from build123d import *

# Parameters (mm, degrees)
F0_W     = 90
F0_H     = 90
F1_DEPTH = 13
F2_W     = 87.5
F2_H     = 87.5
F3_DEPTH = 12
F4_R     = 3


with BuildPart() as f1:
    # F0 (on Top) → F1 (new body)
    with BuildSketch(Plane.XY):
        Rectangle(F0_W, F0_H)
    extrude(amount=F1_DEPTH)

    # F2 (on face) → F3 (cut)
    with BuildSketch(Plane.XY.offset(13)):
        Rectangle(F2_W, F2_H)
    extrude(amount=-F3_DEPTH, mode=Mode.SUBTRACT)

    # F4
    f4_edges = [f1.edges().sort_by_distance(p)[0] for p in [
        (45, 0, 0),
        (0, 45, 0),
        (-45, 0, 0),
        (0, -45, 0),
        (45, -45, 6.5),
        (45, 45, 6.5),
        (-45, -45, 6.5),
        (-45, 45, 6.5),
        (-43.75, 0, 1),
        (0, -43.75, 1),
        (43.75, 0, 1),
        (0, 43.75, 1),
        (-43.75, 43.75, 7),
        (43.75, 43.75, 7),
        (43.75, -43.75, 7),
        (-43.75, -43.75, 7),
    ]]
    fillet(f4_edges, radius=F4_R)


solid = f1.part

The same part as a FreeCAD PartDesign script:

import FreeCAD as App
import Part
import Sketcher

V = App.Vector
Q = App.Units.Quantity


def edges_at(feature, points):
    """Names of the edges that pass closest to the given points."""
    edges = feature.Shape.Edges
    near = lambda p: min(range(len(edges)), key=lambda i: edges[i].distToShape(Part.Vertex(*p))[0])
    return sorted({f"Edge{near(p) + 1}" for p in points})

doc = App.newDocument("Part")
body = doc.addObject("PartDesign::Body", "Body")

# Sketch on XY plane
sketch1 = body.newObject("Sketcher::SketchObject", "Sketch")
sketch1.AttachmentSupport = (doc.getObject("XY_Plane"), [""])
sketch1.MapMode = "FlatFace"
sketch1.addGeometry([
    Part.LineSegment(V(-45, 45, 0), V(-45, -45, 0)),
    Part.LineSegment(V(-45, -45, 0), V(45, -45, 0)),
    Part.LineSegment(V(45, -45, 0), V(45, 45, 0)),
    Part.LineSegment(V(45, 45, 0), V(-45, 45, 0)),
], False)
sketch1.addConstraint([
    Sketcher.Constraint("Coincident", 0, 2, 1, 1),
    Sketcher.Constraint("Coincident", 1, 2, 2, 1),
    Sketcher.Constraint("Coincident", 2, 2, 3, 1),
    Sketcher.Constraint("Coincident", 3, 2, 0, 1),
    Sketcher.Constraint("Vertical", 0),
    Sketcher.Constraint("Horizontal", 1),
    Sketcher.Constraint("Vertical", 2),
    Sketcher.Constraint("Horizontal", 3),
    Sketcher.Constraint("Symmetric", 0, 2, 2, 2, -1, 1),
    Sketcher.Constraint("Equal", 3, 0),
    Sketcher.Constraint("DistanceX", 1, 1, 1, 2, Q("90 mm")),
])
pad1 = body.newObject("PartDesign::Pad", "Pad")
pad1.Profile = sketch1
pad1.Length = 13

# Sketch on XY plane
sketch2 = body.newObject("Sketcher::SketchObject", "Sketch001")
sketch2.AttachmentSupport = (doc.getObject("XY_Plane"), [""])
sketch2.MapMode = "FlatFace"
sketch2.AttachmentOffset = App.Placement(V(0, 0, 13), App.Rotation())
sketch2.addGeometry([
    Part.LineSegment(V(-44, 44, 0), V(-44, -44, 0)),
    Part.LineSegment(V(-44, -44, 0), V(44, -44, 0)),
    Part.LineSegment(V(44, -44, 0), V(44, 44, 0)),
    Part.LineSegment(V(44, 44, 0), V(-44, 44, 0)),
], False)
sketch2.addConstraint([
    Sketcher.Constraint("Coincident", 0, 2, 1, 1),
    Sketcher.Constraint("Coincident", 1, 2, 2, 1),
    Sketcher.Constraint("Coincident", 2, 2, 3, 1),
    Sketcher.Constraint("Coincident", 3, 2, 0, 1),
    Sketcher.Constraint("Vertical", 0),
    Sketcher.Constraint("Horizontal", 1),
    Sketcher.Constraint("Vertical", 2),
    Sketcher.Constraint("Horizontal", 3),
    Sketcher.Constraint("Symmetric", 0, 2, 2, 2, -1, 1),
    Sketcher.Constraint("Equal", 3, 0),
    Sketcher.Constraint("DistanceX", 1, 1, 1, 2, Q("87.5 mm")),
])
pocket1 = body.newObject("PartDesign::Pocket", "Pocket")
pocket1.Profile = sketch2
pocket1.Length = 12
doc.recompute()

fillet = body.newObject("PartDesign::Fillet", "Fillet")
fillet.Base = (pocket1, edges_at(pocket1, [
    (45, 0, 0),
    (0, 45, 0),
    (-45, 0, 0),
    (0, -45, 0),
    (45, -45, 6.5),
    (45, 45, 6.5),
    (-45, -45, 6.5),
    (-45, 45, 6.5),
    (-43.75, 0, 1),
    (0, -43.75, 1),
    (43.75, 0, 1),
    (0, 43.75, 1),
    (-43.75, 43.75, 7),
    (43.75, 43.75, 7),
    (43.75, -43.75, 7),
    (-43.75, -43.75, 7),
]))
fillet.Radius = 3

doc.recompute()
